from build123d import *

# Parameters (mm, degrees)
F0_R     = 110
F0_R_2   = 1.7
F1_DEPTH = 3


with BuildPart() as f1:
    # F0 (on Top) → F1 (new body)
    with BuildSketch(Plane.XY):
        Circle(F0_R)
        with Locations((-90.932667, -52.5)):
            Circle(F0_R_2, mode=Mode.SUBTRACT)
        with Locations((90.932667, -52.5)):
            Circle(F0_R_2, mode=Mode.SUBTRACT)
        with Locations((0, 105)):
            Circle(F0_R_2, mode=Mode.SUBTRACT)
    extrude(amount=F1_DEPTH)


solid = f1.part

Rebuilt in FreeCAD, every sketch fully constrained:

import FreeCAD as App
import Part
import Sketcher

V = App.Vector
Q = App.Units.Quantity

doc = App.newDocument("Part")
body = doc.addObject("PartDesign::Body", "Body")

# Sketch on XY plane
sketch1 = body.newObject("Sketcher::SketchObject", "Sketch")
sketch1.AttachmentSupport = (doc.getObject("XY_Plane"), [""])
sketch1.MapMode = "FlatFace"
sketch1.addGeometry(Part.Circle(V(0, 0, 0), V(0, 0, 1), 110), False)
sketch1.addGeometry(Part.Circle(V(-90.9, -52.5, 0), V(0, 0, 1), 1.7), False)
sketch1.addGeometry(Part.Circle(V(90.9, -52.5, 0), V(0, 0, 1), 1.7), False)
sketch1.addGeometry(Part.Circle(V(0, 105, 0), V(0, 0, 1), 1.7), False)
sketch1.addConstraint(Sketcher.Constraint("Coincident", 0, 3, -1, 1))
sketch1.addConstraint(Sketcher.Constraint("Equal", 1, 2))
sketch1.addConstraint(Sketcher.Constraint("Equal", 2, 3))
sketch1.addConstraint(Sketcher.Constraint("Symmetric", 1, 3, 2, 3, -2))
sketch1.addConstraint(Sketcher.Constraint("PointOnObject", 3, 3, -2))
sketch1.addConstraint(Sketcher.Constraint("Diameter", 0, Q("220 mm")))
sketch1.addConstraint(Sketcher.Constraint("Diameter", 1, Q("3.4 mm")))
sketch1.addConstraint(Sketcher.Constraint("DistanceY", -1, 1, 3, 3, Q("105 mm")))
sketch1.addConstraint(Sketcher.Constraint("DistanceY", 1, 3, -1, 1, Q("52.5 mm")))
sketch1.addConstraint(Sketcher.Constraint("DistanceX", 1, 3, -1, 1, Q("90.932667 mm")))
pad1 = body.newObject("PartDesign::Pad", "Pad")
pad1.Profile = sketch1
pad1.Length = 3

doc.recompute()
